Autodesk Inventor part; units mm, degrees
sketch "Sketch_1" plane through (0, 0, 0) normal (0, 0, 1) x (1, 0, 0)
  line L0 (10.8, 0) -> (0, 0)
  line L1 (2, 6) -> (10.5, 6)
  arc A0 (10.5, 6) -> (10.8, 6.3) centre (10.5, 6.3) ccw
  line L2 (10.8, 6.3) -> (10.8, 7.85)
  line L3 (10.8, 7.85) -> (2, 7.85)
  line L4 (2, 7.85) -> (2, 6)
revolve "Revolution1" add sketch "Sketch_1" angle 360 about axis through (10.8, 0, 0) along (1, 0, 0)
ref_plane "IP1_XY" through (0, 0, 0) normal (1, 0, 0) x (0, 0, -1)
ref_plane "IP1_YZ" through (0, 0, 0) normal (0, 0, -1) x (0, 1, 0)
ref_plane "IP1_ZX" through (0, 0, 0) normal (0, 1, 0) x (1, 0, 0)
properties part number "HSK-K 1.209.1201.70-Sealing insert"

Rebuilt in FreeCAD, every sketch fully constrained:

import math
import FreeCAD as App
import Part
import Sketcher

V = App.Vector

doc = App.newDocument("Part")
body = doc.addObject("PartDesign::Body", "Body")

sketch1 = doc.addObject("Sketcher::SketchObject", "Sketch")
body.addObject(sketch1)
sketch1.AttachmentSupport = (doc.XY_Plane, [""])
sketch1.MapMode = "FlatFace"
sketch1.addGeometry([
    Part.LineSegment(V(2, 7.85, 0), V(2, 6, 0)),
    Part.LineSegment(V(2, 6, 0), V(10.5, 6, 0)),
    Part.ArcOfCircle(Part.Circle(V(10.5, 6.3, 0), V(0, 0, 1), 0.3), math.radians(-90), math.radians(0)),
    Part.LineSegment(V(10.8, 6.3, 0), V(10.8, 7.85, 0)),
    Part.LineSegment(V(10.8, 7.85, 0), V(2, 7.85, 0)),
], False)
sketch1.addConstraint([
    Sketcher.Constraint("Coincident", 0, 2, 1, 1),
    Sketcher.Constraint("Tangent", 1, 2, 2, 1),
    Sketcher.Constraint("Tangent", 2, 2, 3, 1),
    Sketcher.Constraint("Coincident", 3, 2, 4, 1),
    Sketcher.Constraint("Coincident", 4, 2, 0, 1),
    Sketcher.Constraint("Vertical", 0),
    Sketcher.Constraint("Horizontal", 1),
    Sketcher.Constraint("Vertical", 3),
    Sketcher.Constraint("Horizontal", 4),
    Sketcher.Constraint("Radius", 2, 0.3),
    Sketcher.Constraint("DistanceX", 1, 1, 1, 2, 8.5),
    Sketcher.Constraint("DistanceX", -1, 1, 0, 2, 2.0),
    Sketcher.Constraint("DistanceY", -1, 1, 0, 2, 6.0),
    Sketcher.Constraint("DistanceY", 0, 2, 0, 1, 1.85),
])
revolution = doc.addObject("PartDesign::Revolution", "Revolution")
body.addObject(revolution)
revolution.Profile = sketch1
revolution.ReferenceAxis = (sketch1, ["H_Axis"])
revolution.Angle = 360

doc.recompute()
